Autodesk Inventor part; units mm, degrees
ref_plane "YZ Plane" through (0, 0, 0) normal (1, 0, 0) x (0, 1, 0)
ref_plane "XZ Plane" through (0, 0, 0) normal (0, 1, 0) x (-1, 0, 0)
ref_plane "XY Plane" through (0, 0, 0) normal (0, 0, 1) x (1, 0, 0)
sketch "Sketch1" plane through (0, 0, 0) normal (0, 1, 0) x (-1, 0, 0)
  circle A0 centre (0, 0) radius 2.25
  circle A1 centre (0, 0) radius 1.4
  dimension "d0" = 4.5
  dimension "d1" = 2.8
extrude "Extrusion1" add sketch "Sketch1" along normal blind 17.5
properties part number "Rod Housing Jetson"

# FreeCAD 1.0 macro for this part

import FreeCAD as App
import Part
import Sketcher
Q = App.Units.Quantity

doc = App.newDocument("Part")
body = doc.addObject("PartDesign::Body", "Body")

sketch1 = body.newObject("Sketcher::SketchObject", "Sketch")
sketch1.AttachmentSupport = (doc.getObject("XZ_Plane"), [""])
sketch1.MapMode = "FlatFace"
sketch1.addGeometry([
    Part.Circle(App.Vector(0, 0, 0), App.Vector(0, 0, 1), 2.2),
    Part.Circle(App.Vector(0, 0, 0), App.Vector(0, 0, 1), 1.4),
], False)
sketch1.addConstraint([
    Sketcher.Constraint("Coincident", 0, 3, -1, 1),
    Sketcher.Constraint("Coincident", 1, 3, -1, 1),
    Sketcher.Constraint("Diameter", 0, Q("4.5 mm")),
    Sketcher.Constraint("Diameter", 1, Q("2.8 mm")),
])
pad1 = body.newObject("PartDesign::Pad", "Pad")
pad1.Profile = sketch1
pad1.Length = 17.5
pad1.Reversed = True

doc.recompute()
